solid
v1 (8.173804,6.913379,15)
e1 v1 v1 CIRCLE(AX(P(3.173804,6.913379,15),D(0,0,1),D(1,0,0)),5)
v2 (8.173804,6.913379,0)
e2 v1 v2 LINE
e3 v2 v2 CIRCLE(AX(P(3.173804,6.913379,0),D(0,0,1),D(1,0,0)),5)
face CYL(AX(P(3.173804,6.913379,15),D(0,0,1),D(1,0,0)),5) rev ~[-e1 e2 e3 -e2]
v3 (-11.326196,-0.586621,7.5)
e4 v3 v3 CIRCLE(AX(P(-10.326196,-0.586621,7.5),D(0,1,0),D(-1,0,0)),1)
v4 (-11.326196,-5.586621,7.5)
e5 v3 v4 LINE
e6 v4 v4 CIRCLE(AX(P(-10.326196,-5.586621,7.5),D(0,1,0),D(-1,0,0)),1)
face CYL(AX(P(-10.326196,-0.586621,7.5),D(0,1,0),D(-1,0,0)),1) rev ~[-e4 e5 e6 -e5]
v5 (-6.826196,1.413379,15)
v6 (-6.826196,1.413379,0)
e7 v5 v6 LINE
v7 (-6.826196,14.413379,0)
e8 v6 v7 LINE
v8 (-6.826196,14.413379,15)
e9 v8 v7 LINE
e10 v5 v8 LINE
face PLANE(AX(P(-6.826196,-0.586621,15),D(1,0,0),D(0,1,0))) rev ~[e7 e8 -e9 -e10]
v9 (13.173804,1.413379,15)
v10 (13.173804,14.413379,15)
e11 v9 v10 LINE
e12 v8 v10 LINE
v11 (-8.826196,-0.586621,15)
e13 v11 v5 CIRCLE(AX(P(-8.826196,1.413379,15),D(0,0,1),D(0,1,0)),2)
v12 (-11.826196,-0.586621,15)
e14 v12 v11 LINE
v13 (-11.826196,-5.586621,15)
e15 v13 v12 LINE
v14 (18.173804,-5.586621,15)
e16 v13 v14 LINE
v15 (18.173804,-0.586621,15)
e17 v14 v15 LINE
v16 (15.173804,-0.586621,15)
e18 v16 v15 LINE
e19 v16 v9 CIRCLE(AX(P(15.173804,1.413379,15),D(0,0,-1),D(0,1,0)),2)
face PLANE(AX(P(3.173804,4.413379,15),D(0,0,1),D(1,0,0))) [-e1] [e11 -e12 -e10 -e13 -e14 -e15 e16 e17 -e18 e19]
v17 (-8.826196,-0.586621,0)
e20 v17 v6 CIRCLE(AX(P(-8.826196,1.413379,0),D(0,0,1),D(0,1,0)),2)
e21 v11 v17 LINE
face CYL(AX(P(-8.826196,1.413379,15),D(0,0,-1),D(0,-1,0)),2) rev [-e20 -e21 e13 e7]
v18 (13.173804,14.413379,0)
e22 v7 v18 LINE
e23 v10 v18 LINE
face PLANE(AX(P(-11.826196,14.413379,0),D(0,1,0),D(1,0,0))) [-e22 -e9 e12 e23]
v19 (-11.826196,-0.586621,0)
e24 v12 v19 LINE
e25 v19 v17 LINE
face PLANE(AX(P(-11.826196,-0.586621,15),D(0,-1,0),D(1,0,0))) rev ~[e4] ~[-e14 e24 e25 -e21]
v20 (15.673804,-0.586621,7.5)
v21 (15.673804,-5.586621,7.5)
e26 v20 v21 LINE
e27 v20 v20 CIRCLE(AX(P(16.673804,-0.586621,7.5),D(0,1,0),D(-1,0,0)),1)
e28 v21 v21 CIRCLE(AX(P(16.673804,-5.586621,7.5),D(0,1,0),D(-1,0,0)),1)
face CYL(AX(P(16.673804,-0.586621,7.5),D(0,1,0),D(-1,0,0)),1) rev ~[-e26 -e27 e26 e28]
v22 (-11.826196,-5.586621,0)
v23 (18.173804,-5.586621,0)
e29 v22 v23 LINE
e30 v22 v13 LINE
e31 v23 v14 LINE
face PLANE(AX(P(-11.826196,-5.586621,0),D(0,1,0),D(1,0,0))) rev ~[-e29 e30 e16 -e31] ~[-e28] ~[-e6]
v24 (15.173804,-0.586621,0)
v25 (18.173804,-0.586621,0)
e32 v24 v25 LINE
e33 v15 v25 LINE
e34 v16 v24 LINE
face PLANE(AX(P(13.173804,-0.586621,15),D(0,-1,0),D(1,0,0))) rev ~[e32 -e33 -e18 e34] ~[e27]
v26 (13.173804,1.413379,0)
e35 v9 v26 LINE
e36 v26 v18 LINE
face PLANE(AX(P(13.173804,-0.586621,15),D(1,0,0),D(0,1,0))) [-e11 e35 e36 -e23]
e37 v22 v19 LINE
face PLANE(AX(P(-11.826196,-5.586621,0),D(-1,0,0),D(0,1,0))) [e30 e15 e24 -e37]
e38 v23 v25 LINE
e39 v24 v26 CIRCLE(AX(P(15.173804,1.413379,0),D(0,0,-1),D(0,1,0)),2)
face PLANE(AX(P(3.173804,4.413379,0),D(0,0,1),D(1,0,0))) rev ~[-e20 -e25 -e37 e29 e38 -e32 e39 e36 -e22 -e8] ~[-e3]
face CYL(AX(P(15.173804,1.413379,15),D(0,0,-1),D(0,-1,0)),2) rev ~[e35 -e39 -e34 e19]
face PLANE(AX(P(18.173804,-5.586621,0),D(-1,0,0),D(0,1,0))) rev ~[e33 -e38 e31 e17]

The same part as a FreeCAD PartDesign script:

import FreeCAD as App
import Part
import Sketcher
from FreeCAD import Vector
Q = App.Units.Quantity


def edges_at(feature, points):
    """Names of the edges that pass closest to the given points."""
    edges = feature.Shape.Edges
    near = lambda p: min(range(len(edges)), key=lambda i: edges[i].distToShape(Part.Vertex(*p))[0])
    return sorted({f"Edge{near(p) + 1}" for p in points})

doc = App.newDocument("Part")
body = doc.addObject("PartDesign::Body", "Body")

# Sketch on XY plane
sketch1 = body.newObject("Sketcher::SketchObject", "Sketch")
sketch1.AttachmentSupport = (doc.getObject("XY_Plane"), [""])
sketch1.MapMode = "FlatFace"
sketch1.addGeometry([
    Part.LineSegment(Vector(-12, 14, 0), Vector(-12, -6, 0)),
    Part.LineSegment(Vector(-12, -6, 0), Vector(18, -6, 0)),
    Part.LineSegment(Vector(18, -6, 0), Vector(18, 14, 0)),
    Part.LineSegment(Vector(18, 14, 0), Vector(-12, 14, 0)),
], False)
sketch1.addConstraint([
    Sketcher.Constraint("Coincident", 0, 2, 1, 1),
    Sketcher.Constraint("Coincident", 1, 2, 2, 1),
    Sketcher.Constraint("Coincident", 2, 2, 3, 1),
    Sketcher.Constraint("Coincident", 3, 2, 0, 1),
    Sketcher.Constraint("Vertical", 0),
    Sketcher.Constraint("Horizontal", 1),
    Sketcher.Constraint("Vertical", 2),
    Sketcher.Constraint("Horizontal", 3),
    Sketcher.Constraint("DistanceX", 1, 1, 1, 2, Q("30 mm")),
    Sketcher.Constraint("DistanceY", 0, 2, 0, 1, Q("20 mm")),
    Sketcher.Constraint("DistanceY", 0, 2, -1, 1, Q("5.586621 mm")),
    Sketcher.Constraint("DistanceX", 0, 2, -1, 1, Q("11.826196 mm")),
])
pad1 = body.newObject("PartDesign::Pad", "Pad")
pad1.Profile = sketch1
pad1.Length = 15

# Sketch on XY plane
sketch2 = body.newObject("Sketcher::SketchObject", "Sketch001")
sketch2.AttachmentSupport = (doc.getObject("XY_Plane"), [""])
sketch2.MapMode = "FlatFace"
sketch2.AttachmentOffset = App.Placement(Vector(0, 0, 15), App.Rotation())
sketch2.addGeometry([
    Part.LineSegment(Vector(13, 14, 0), Vector(13, -1, 0)),
    Part.LineSegment(Vector(13, -1, 0), Vector(18, -1, 0)),
    Part.LineSegment(Vector(18, -1, 0), Vector(18, 14, 0)),
    Part.LineSegment(Vector(18, 14, 0), Vector(13, 14, 0)),
], False)
sketch2.addConstraint([
    Sketcher.Constraint("Coincident", 0, 2, 1, 1),
    Sketcher.Constraint("Coincident", 1, 2, 2, 1),
    Sketcher.Constraint("Coincident", 2, 2, 3, 1),
    Sketcher.Constraint("Coincident", 3, 2, 0, 1),
    Sketcher.Constraint("Vertical", 0),
    Sketcher.Constraint("Horizontal", 1),
    Sketcher.Constraint("Vertical", 2),
    Sketcher.Constraint("Horizontal", 3),
    Sketcher.Constraint("DistanceX", 1, 1, 1, 2, Q("5 mm")),
    Sketcher.Constraint("DistanceY", 0, 2, 0, 1, Q("15 mm")),
    Sketcher.Constraint("DistanceY", 0, 2, -1, 1, Q("0.586621 mm")),
    Sketcher.Constraint("DistanceX", -1, 1, 0, 2, Q("13.173804 mm")),
])
pocket1 = body.newObject("PartDesign::Pocket", "Pocket")
pocket1.Profile = sketch2
pocket1.Length = 25

# Sketch on XY plane
sketch3 = body.newObject("Sketcher::SketchObject", "Sketch002")
sketch3.AttachmentSupport = (doc.getObject("XY_Plane"), [""])
sketch3.MapMode = "FlatFace"
sketch3.AttachmentOffset = App.Placement(Vector(0, 0, 15), App.Rotation())
sketch3.addGeometry([
    Part.LineSegment(Vector(-11.8, 14.4, 0), Vector(-11.8, -0.6, 0)),
    Part.LineSegment(Vector(-11.8, -0.6, 0), Vector(-6.8, -0.6, 0)),
    Part.LineSegment(Vector(-6.8, -0.6, 0), Vector(-6.8, 14.4, 0)),
    Part.LineSegment(Vector(-6.8, 14.4, 0), Vector(-11.8, 14.4, 0)),
], False)
sketch3.addConstraint([
    Sketcher.Constraint("Coincident", 0, 2, 1, 1),
    Sketcher.Constraint("Coincident", 1, 2, 2, 1),
    Sketcher.Constraint("Coincident", 2, 2, 3, 1),
    Sketcher.Constraint("Coincident", 3, 2, 0, 1),
    Sketcher.Constraint("Vertical", 0),
    Sketcher.Constraint("Horizontal", 1),
    Sketcher.Constraint("Vertical", 2),
    Sketcher.Constraint("Horizontal", 3),
    Sketcher.Constraint("DistanceX", 1, 1, 1, 2, Q("5 mm")),
    Sketcher.Constraint("DistanceY", 0, 2, 0, 1, Q("15 mm")),
    Sketcher.Constraint("DistanceY", 0, 2, -1, 1, Q("0.586621 mm")),
    Sketcher.Constraint("DistanceX", 0, 2, -1, 1, Q("11.826196 mm")),
])
pocket2 = body.newObject("PartDesign::Pocket", "Pocket001")
pocket2.Profile = sketch3
pocket2.Length = 25

# Sketch on XY plane
sketch4 = body.newObject("Sketcher::SketchObject", "Sketch003")
sketch4.AttachmentSupport = (doc.getObject("XY_Plane"), [""])
sketch4.MapMode = "FlatFace"
sketch4.AttachmentOffset = App.Placement(Vector(0, 0, 15), App.Rotation())
sketch4.addGeometry(Part.Circle(Vector(3, 7, 0), Vector(0, 0, 1), 5), False)
sketch4.addConstraint([
    Sketcher.Constraint("Diameter", 0, Q("10 mm")),
    Sketcher.Constraint("DistanceY", -1, 1, 0, 3, Q("6.913379 mm")),
    Sketcher.Constraint("DistanceX", -1, 1, 0, 3, Q("3.173804 mm")),
])
pocket3 = body.newObject("PartDesign::Pocket", "Pocket002")
pocket3.Profile = sketch4
pocket3.Type = "ThroughAll"
doc.recompute()

fillet = body.newObject("PartDesign::Fillet", "Fillet")
fillet.Base = (pocket3, edges_at(pocket3, [(-6.826, -0.587, 7.5), (13.174, -0.587, 7.5)]))
fillet.Radius = 2

# Sketch on XZ plane
sketch5 = body.newObject("Sketcher::SketchObject", "Sketch004")
sketch5.AttachmentSupport = (doc.getObject("XZ_Plane"), [""])
sketch5.MapMode = "FlatFace"
sketch5.AttachmentOffset = App.Placement(Vector(0, 0, 0.586621), App.Rotation())
sketch5.addGeometry(Part.Circle(Vector(-10.3, 7.5, 0), Vector(0, 0, 1), 1), False)
sketch5.addConstraint([
    Sketcher.Constraint("Diameter", 0, Q("2 mm")),
    Sketcher.Constraint("DistanceY", -1, 1, 0, 3, Q("7.5 mm")),
    Sketcher.Constraint("DistanceX", 0, 3, -1, 1, Q("10.326196 mm")),
])
pocket4 = body.newObject("PartDesign::Pocket", "Pocket003")
pocket4.Profile = sketch5
pocket4.Length = 25
pocket4.Reversed = True

# Sketch on XZ plane
sketch6 = body.newObject("Sketcher::SketchObject", "Sketch005")
sketch6.AttachmentSupport = (doc.getObject("XZ_Plane"), [""])
sketch6.MapMode = "FlatFace"
sketch6.AttachmentOffset = App.Placement(Vector(0, 0, 0.586621), App.Rotation())
sketch6.addGeometry(Part.Circle(Vector(16.7, 7.5, 0), Vector(0, 0, 1), 1), False)
sketch6.addConstraint([
    Sketcher.Constraint("Diameter", 0, Q("2 mm")),
    Sketcher.Constraint("DistanceY", -1, 1, 0, 3, Q("7.5 mm")),
    Sketcher.Constraint("DistanceX", -1, 1, 0, 3, Q("16.673804 mm")),
])
pocket5 = body.newObject("PartDesign::Pocket", "Pocket004")
pocket5.Profile = sketch6
pocket5.Type = "ThroughAll"
pocket5.Reversed = True

doc.recompute()
